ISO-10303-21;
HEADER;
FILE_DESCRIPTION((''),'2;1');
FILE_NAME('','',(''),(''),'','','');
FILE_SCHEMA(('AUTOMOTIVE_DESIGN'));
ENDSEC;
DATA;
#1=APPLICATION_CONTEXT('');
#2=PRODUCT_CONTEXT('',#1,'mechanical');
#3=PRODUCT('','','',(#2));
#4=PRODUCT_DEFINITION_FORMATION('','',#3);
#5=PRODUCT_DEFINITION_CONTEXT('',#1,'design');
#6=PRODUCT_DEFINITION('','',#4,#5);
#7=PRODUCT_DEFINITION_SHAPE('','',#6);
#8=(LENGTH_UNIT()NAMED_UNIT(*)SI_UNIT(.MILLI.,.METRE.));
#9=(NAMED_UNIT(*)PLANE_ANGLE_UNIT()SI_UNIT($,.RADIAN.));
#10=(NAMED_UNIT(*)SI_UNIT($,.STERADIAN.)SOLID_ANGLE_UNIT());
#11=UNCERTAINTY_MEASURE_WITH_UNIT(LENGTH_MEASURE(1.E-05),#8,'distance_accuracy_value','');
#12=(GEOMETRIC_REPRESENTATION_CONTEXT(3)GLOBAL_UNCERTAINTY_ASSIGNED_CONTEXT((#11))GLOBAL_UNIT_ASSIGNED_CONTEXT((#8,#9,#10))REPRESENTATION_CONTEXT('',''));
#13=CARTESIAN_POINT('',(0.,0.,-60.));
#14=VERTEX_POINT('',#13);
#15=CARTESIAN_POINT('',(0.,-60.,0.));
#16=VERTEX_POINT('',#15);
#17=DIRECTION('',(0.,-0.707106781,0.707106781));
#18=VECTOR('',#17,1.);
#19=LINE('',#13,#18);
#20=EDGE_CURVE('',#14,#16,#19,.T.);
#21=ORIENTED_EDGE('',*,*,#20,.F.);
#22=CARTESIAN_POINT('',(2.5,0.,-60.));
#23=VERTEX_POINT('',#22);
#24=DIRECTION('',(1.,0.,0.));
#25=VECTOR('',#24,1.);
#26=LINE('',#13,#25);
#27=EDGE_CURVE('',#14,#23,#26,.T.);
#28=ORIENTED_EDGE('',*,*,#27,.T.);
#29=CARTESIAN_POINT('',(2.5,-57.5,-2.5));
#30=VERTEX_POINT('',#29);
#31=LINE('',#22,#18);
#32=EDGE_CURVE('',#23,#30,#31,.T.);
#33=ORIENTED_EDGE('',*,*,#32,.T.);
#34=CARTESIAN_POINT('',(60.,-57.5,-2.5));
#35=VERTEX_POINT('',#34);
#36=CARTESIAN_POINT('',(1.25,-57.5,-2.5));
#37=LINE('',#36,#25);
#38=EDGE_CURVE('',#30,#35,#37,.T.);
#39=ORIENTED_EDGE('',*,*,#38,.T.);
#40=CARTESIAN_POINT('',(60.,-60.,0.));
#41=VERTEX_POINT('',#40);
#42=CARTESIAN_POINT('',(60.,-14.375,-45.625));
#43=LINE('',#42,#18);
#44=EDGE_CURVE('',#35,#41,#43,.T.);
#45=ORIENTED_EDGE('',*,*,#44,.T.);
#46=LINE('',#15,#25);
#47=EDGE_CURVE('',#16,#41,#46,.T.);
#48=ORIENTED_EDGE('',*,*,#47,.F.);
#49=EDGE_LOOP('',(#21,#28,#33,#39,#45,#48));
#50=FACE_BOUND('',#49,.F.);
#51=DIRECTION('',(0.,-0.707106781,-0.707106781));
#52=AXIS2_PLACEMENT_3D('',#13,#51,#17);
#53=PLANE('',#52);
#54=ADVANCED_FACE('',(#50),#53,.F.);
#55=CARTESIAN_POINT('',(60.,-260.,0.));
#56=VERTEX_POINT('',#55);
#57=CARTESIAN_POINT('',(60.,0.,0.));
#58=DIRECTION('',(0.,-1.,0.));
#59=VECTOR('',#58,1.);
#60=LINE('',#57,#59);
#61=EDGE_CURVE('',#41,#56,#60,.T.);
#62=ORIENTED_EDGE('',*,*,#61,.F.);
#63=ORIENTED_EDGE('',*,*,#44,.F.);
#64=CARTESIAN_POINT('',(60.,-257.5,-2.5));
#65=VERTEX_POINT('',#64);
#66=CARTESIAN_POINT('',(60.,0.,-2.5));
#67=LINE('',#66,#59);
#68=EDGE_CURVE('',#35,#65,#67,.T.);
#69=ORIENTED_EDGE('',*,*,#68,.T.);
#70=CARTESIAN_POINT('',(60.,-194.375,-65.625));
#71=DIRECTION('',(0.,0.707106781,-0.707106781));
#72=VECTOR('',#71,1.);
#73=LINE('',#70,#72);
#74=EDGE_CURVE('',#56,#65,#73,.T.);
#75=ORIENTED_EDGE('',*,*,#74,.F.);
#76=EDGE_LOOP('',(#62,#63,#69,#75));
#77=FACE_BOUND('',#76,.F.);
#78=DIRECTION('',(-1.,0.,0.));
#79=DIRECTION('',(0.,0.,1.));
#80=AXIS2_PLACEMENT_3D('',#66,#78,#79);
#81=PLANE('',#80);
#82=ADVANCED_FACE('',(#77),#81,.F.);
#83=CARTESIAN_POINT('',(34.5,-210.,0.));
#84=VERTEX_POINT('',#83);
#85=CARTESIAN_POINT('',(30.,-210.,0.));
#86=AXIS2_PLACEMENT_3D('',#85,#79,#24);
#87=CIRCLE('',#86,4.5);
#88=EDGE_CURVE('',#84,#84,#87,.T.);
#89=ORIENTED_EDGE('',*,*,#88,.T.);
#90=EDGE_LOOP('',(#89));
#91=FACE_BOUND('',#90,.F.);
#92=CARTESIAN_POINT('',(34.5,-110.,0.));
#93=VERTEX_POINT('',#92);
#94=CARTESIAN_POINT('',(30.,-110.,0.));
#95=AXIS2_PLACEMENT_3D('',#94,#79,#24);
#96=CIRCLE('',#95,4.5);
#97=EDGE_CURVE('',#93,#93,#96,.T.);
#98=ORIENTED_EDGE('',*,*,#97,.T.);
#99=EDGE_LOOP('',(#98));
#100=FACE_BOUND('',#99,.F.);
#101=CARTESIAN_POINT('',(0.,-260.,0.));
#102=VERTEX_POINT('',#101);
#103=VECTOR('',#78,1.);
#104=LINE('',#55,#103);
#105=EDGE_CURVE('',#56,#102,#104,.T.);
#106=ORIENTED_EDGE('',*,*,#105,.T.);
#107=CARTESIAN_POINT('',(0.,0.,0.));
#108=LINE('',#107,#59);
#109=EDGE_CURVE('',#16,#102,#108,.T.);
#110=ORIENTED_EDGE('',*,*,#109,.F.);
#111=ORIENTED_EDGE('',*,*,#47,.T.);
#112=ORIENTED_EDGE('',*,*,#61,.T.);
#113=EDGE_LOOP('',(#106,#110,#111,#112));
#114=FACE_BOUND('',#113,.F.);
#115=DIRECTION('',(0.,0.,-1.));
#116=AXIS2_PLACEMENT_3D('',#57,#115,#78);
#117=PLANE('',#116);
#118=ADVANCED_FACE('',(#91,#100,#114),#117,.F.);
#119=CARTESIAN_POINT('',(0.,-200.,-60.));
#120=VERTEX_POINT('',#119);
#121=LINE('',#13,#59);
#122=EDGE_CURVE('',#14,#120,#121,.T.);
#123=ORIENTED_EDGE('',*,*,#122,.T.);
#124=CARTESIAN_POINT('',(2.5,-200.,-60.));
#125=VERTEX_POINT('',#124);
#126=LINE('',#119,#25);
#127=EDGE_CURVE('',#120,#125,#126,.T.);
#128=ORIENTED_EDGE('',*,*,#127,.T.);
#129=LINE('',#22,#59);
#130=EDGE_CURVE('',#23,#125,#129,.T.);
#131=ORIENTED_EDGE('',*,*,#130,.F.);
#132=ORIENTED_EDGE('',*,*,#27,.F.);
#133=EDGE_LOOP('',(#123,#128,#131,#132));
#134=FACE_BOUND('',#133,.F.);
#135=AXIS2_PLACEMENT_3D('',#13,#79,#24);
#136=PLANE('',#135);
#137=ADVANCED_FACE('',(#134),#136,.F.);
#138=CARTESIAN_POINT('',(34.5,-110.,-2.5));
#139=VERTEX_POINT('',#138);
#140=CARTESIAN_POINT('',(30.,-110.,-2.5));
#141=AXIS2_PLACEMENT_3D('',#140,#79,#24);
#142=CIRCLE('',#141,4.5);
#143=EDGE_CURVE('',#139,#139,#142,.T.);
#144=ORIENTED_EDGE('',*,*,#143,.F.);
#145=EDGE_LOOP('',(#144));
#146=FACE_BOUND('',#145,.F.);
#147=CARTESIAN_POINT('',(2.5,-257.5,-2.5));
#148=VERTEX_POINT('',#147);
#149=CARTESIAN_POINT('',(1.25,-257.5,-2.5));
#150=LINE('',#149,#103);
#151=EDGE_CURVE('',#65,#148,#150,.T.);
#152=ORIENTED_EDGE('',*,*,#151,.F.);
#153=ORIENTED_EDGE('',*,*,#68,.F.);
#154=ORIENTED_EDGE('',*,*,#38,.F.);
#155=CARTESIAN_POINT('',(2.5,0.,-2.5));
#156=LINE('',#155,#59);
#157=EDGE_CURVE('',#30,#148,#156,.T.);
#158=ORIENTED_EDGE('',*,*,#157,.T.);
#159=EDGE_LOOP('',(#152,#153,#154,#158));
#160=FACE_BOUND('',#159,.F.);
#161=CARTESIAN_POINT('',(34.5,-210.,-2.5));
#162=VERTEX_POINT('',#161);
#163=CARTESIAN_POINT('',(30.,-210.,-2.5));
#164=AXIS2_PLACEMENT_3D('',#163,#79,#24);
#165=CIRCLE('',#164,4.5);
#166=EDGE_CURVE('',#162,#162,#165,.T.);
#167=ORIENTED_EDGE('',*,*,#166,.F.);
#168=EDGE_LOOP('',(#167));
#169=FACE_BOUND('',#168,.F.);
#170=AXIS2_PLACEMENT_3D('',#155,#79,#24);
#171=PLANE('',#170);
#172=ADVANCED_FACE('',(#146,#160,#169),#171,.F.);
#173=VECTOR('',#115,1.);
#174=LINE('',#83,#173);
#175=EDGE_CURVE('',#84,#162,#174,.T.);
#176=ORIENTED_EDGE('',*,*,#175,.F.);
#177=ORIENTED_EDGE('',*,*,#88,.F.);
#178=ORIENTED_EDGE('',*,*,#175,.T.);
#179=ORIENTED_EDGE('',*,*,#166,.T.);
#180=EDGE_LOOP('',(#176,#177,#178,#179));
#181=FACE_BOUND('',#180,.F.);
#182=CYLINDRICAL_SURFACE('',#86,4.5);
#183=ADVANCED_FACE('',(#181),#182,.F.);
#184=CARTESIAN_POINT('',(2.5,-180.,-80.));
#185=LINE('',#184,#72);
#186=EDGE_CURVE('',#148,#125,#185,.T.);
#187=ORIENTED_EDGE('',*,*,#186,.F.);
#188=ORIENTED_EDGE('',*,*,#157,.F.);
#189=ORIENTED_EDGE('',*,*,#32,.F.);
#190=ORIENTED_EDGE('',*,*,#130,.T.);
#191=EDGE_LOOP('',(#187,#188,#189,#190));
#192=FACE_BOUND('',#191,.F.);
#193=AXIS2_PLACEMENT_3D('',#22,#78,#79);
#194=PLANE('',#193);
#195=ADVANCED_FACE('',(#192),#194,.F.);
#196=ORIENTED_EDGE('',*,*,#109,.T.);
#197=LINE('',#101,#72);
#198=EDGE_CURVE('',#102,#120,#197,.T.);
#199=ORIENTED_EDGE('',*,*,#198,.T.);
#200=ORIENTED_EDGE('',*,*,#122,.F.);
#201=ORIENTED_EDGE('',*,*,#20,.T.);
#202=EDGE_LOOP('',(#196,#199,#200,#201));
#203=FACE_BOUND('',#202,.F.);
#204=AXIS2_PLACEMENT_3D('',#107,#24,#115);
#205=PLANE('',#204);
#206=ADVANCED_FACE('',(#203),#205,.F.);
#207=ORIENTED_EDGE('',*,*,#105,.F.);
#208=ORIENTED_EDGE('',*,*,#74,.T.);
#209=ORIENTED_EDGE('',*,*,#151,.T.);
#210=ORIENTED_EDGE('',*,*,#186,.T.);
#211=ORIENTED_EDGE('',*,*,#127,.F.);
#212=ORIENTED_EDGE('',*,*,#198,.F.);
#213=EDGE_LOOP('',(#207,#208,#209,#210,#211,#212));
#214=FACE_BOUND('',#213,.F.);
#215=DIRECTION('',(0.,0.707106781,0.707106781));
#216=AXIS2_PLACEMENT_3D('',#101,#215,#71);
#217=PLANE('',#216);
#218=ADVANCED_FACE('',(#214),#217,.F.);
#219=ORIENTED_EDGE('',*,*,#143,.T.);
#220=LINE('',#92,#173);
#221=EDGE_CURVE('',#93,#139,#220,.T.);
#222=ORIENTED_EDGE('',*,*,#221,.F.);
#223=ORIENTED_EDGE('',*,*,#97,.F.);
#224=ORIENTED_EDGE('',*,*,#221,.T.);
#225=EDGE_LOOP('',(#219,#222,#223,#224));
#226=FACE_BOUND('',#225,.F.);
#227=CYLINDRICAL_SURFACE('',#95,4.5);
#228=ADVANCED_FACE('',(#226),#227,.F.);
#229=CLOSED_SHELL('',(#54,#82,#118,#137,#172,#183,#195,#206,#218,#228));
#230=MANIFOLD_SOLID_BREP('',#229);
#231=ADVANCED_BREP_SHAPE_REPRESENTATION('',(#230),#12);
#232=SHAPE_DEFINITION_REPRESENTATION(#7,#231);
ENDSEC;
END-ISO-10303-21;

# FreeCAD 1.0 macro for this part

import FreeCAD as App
import Part
import Sketcher
from FreeCAD import Vector
Q = App.Units.Quantity

doc = App.newDocument("Part")
body = doc.addObject("PartDesign::Body", "Body")

sketch1 = body.newObject("Sketcher::SketchObject", "Sketch")
sketch1.AttachmentSupport = (doc.getObject("XZ_Plane"), [""])
sketch1.MapMode = "FlatFace"
sketch1.addGeometry(Part.LineSegment(Vector(60, 0, 0), Vector(0, 0, 0)), False)
sketch1.addGeometry(Part.LineSegment(Vector(0, 0, 0), Vector(0, -60, 0)), False)
sketch1.addGeometry(Part.LineSegment(Vector(0, -60, 0), Vector(2.5, -60, 0)), False)
sketch1.addGeometry(Part.LineSegment(Vector(2.5, -60, 0), Vector(2.5, -2.5, 0)), False)
sketch1.addGeometry(Part.LineSegment(Vector(2.5, -2.5, 0), Vector(60, -2.5, 0)), False)
sketch1.addGeometry(Part.LineSegment(Vector(60, -2.5, 0), Vector(60, 0, 0)), False)
sketch1.addConstraint(Sketcher.Constraint("Coincident", 0, 2, 1, 1))
sketch1.addConstraint(Sketcher.Constraint("Coincident", 1, 2, 2, 1))
sketch1.addConstraint(Sketcher.Constraint("Coincident", 2, 2, 3, 1))
sketch1.addConstraint(Sketcher.Constraint("Coincident", 3, 2, 4, 1))
sketch1.addConstraint(Sketcher.Constraint("Coincident", 4, 2, 5, 1))
sketch1.addConstraint(Sketcher.Constraint("Coincident", 5, 2, 0, 1))
sketch1.addConstraint(Sketcher.Constraint("Horizontal", 0))
sketch1.addConstraint(Sketcher.Constraint("Vertical", 1))
sketch1.addConstraint(Sketcher.Constraint("Horizontal", 2))
sketch1.addConstraint(Sketcher.Constraint("Vertical", 3))
sketch1.addConstraint(Sketcher.Constraint("Horizontal", 4))
sketch1.addConstraint(Sketcher.Constraint("Vertical", 5))
sketch1.addConstraint(Sketcher.Constraint("Coincident", 0, 2, -1, 1))
sketch1.addConstraint(Sketcher.Constraint("Equal", 0, 1))
sketch1.addConstraint(Sketcher.Constraint("Equal", 4, 3))
sketch1.addConstraint(Sketcher.Constraint("DistanceX", 0, 2, 0, 1, Q("60 mm")))
sketch1.addConstraint(Sketcher.Constraint("DistanceX", 2, 1, 2, 2, Q("2.5 mm")))
pad1 = body.newObject("PartDesign::Pad", "Pad")
pad1.Profile = sketch1
pad1.Length = 260

sketch2 = body.newObject("Sketcher::SketchObject", "Sketch001")
sketch2.AttachmentSupport = (doc.getObject("YZ_Plane"), [""])
sketch2.MapMode = "FlatFace"
sketch2.addGeometry(Part.LineSegment(Vector(0, 0, 0), Vector(0, -60, 0)), False)
sketch2.addGeometry(Part.LineSegment(Vector(0, -60, 0), Vector(-60, 0, 0)), False)
sketch2.addGeometry(Part.LineSegment(Vector(-60, 0, 0), Vector(0, 0, 0)), False)
sketch2.addGeometry(Part.LineSegment(Vector(-260, -60, 0), Vector(-260, 0, 0)), False)
sketch2.addGeometry(Part.LineSegment(Vector(-260, 0, 0), Vector(-200, -60, 0)), False)
sketch2.addGeometry(Part.LineSegment(Vector(-200, -60, 0), Vector(-260, -60, 0)), False)
sketch2.addConstraint(Sketcher.Constraint("Coincident", 0, 2, 1, 1))
sketch2.addConstraint(Sketcher.Constraint("Coincident", 1, 2, 2, 1))
sketch2.addConstraint(Sketcher.Constraint("Coincident", 2, 2, 0, 1))
sketch2.addConstraint(Sketcher.Constraint("Coincident", 3, 2, 4, 1))
sketch2.addConstraint(Sketcher.Constraint("Coincident", 4, 2, 5, 1))
sketch2.addConstraint(Sketcher.Constraint("Coincident", 5, 2, 3, 1))
sketch2.addConstraint(Sketcher.Constraint("Vertical", 0))
sketch2.addConstraint(Sketcher.Constraint("Horizontal", 2))
sketch2.addConstraint(Sketcher.Constraint("Vertical", 3))
sketch2.addConstraint(Sketcher.Constraint("Horizontal", 5))
sketch2.addConstraint(Sketcher.Constraint("Coincident", 2, 2, -1, 1))
sketch2.addConstraint(Sketcher.Constraint("PointOnObject", 3, 2, -1))
sketch2.addConstraint(Sketcher.Constraint("Parallel", 1, 4))
sketch2.addConstraint(Sketcher.Constraint("Horizontal", 0, 2, 4, 2))
sketch2.addConstraint(Sketcher.Constraint("Equal", 5, 0))
sketch2.addConstraint(Sketcher.Constraint("DistanceX", 2, 1, 2, 2, Q("60 mm")))
sketch2.addConstraint(Sketcher.Constraint("DistanceX", 3, 2, -1, 1, Q("260 mm")))
pocket1 = body.newObject("PartDesign::Pocket", "Pocket")
pocket1.Profile = sketch2
pocket1.Type = "ThroughAll"
pocket1.Reversed = True

sketch3 = body.newObject("Sketcher::SketchObject", "Sketch002")
sketch3.AttachmentSupport = (doc.getObject("XY_Plane"), [""])
sketch3.MapMode = "FlatFace"
sketch3.addGeometry(Part.Circle(Vector(30, -110, 0), Vector(0, 0, 1), 4.5), False)
sketch3.addGeometry(Part.Circle(Vector(30, -210, 0), Vector(0, 0, 1), 4.5), False)
sketch3.addConstraint(Sketcher.Constraint("Equal", 0, 1))
sketch3.addConstraint(Sketcher.Constraint("Vertical", 0, 3, 1, 3))
sketch3.addConstraint(Sketcher.Constraint("Diameter", 0, Q("9 mm")))
sketch3.addConstraint(Sketcher.Constraint("DistanceX", -1, 1, 0, 3, Q("30 mm")))
sketch3.addConstraint(Sketcher.Constraint("DistanceY", 0, 3, -1, 1, Q("110 mm")))
sketch3.addConstraint(Sketcher.Constraint("DistanceY", 1, 3, -1, 1, Q("210 mm")))
pocket2 = body.newObject("PartDesign::Pocket", "Pocket001")
pocket2.Profile = sketch3
pocket2.Type = "ThroughAll"

doc.recompute()
